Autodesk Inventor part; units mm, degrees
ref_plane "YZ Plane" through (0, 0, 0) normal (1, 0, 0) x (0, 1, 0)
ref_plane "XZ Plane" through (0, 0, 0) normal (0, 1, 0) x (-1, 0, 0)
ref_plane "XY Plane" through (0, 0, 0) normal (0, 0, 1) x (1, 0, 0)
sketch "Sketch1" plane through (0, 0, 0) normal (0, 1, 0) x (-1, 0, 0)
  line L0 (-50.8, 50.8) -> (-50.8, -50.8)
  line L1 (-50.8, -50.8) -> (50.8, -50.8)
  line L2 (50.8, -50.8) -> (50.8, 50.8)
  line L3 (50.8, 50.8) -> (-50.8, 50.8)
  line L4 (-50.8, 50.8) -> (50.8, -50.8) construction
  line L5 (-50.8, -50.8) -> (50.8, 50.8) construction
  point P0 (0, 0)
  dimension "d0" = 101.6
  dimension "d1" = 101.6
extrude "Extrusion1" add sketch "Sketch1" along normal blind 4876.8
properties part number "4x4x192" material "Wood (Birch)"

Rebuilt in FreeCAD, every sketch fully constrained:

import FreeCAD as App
import Part
import Sketcher

V = App.Vector
Q = App.Units.Quantity


def add_polygon(sketch, points):
    """Adds a closed chain of lines whose ends are joined by coincident constraints."""
    first, n = sketch.GeometryCount, len(points)
    for a, b in zip(points, points[1:] + points[:1]):
        sketch.addGeometry(Part.LineSegment(App.Vector(*a, 0), App.Vector(*b, 0)), False)
    for i in range(n):
        sketch.addConstraint(Sketcher.Constraint("Coincident", first + i, 2, first + (i + 1) % n, 1))

doc = App.newDocument("Part")
body = doc.addObject("PartDesign::Body", "Body")

sketch1 = body.newObject("Sketcher::SketchObject", "Sketch")
sketch1.AttachmentSupport = (doc.getObject("XZ_Plane"), [""])
sketch1.MapMode = "FlatFace"
add_polygon(sketch1, [(-51, 51), (51, 51), (51, -51), (-51, -51)])
sketch1.addConstraint([
    Sketcher.Constraint("Horizontal", 0),
    Sketcher.Constraint("Vertical", 1),
    Sketcher.Constraint("Horizontal", 2),
    Sketcher.Constraint("Vertical", 3),
    Sketcher.Constraint("Symmetric", 0, 2, 2, 2, -1, 1),
    Sketcher.Constraint("Equal", 2, 1),
    Sketcher.Constraint("DistanceX", 0, 1, 0, 2, Q("4 in")),
])
pad1 = body.newObject("PartDesign::Pad", "Pad")
pad1.Profile = sketch1
pad1.Length = Q("192 in")
pad1.Reversed = True

doc.recompute()
